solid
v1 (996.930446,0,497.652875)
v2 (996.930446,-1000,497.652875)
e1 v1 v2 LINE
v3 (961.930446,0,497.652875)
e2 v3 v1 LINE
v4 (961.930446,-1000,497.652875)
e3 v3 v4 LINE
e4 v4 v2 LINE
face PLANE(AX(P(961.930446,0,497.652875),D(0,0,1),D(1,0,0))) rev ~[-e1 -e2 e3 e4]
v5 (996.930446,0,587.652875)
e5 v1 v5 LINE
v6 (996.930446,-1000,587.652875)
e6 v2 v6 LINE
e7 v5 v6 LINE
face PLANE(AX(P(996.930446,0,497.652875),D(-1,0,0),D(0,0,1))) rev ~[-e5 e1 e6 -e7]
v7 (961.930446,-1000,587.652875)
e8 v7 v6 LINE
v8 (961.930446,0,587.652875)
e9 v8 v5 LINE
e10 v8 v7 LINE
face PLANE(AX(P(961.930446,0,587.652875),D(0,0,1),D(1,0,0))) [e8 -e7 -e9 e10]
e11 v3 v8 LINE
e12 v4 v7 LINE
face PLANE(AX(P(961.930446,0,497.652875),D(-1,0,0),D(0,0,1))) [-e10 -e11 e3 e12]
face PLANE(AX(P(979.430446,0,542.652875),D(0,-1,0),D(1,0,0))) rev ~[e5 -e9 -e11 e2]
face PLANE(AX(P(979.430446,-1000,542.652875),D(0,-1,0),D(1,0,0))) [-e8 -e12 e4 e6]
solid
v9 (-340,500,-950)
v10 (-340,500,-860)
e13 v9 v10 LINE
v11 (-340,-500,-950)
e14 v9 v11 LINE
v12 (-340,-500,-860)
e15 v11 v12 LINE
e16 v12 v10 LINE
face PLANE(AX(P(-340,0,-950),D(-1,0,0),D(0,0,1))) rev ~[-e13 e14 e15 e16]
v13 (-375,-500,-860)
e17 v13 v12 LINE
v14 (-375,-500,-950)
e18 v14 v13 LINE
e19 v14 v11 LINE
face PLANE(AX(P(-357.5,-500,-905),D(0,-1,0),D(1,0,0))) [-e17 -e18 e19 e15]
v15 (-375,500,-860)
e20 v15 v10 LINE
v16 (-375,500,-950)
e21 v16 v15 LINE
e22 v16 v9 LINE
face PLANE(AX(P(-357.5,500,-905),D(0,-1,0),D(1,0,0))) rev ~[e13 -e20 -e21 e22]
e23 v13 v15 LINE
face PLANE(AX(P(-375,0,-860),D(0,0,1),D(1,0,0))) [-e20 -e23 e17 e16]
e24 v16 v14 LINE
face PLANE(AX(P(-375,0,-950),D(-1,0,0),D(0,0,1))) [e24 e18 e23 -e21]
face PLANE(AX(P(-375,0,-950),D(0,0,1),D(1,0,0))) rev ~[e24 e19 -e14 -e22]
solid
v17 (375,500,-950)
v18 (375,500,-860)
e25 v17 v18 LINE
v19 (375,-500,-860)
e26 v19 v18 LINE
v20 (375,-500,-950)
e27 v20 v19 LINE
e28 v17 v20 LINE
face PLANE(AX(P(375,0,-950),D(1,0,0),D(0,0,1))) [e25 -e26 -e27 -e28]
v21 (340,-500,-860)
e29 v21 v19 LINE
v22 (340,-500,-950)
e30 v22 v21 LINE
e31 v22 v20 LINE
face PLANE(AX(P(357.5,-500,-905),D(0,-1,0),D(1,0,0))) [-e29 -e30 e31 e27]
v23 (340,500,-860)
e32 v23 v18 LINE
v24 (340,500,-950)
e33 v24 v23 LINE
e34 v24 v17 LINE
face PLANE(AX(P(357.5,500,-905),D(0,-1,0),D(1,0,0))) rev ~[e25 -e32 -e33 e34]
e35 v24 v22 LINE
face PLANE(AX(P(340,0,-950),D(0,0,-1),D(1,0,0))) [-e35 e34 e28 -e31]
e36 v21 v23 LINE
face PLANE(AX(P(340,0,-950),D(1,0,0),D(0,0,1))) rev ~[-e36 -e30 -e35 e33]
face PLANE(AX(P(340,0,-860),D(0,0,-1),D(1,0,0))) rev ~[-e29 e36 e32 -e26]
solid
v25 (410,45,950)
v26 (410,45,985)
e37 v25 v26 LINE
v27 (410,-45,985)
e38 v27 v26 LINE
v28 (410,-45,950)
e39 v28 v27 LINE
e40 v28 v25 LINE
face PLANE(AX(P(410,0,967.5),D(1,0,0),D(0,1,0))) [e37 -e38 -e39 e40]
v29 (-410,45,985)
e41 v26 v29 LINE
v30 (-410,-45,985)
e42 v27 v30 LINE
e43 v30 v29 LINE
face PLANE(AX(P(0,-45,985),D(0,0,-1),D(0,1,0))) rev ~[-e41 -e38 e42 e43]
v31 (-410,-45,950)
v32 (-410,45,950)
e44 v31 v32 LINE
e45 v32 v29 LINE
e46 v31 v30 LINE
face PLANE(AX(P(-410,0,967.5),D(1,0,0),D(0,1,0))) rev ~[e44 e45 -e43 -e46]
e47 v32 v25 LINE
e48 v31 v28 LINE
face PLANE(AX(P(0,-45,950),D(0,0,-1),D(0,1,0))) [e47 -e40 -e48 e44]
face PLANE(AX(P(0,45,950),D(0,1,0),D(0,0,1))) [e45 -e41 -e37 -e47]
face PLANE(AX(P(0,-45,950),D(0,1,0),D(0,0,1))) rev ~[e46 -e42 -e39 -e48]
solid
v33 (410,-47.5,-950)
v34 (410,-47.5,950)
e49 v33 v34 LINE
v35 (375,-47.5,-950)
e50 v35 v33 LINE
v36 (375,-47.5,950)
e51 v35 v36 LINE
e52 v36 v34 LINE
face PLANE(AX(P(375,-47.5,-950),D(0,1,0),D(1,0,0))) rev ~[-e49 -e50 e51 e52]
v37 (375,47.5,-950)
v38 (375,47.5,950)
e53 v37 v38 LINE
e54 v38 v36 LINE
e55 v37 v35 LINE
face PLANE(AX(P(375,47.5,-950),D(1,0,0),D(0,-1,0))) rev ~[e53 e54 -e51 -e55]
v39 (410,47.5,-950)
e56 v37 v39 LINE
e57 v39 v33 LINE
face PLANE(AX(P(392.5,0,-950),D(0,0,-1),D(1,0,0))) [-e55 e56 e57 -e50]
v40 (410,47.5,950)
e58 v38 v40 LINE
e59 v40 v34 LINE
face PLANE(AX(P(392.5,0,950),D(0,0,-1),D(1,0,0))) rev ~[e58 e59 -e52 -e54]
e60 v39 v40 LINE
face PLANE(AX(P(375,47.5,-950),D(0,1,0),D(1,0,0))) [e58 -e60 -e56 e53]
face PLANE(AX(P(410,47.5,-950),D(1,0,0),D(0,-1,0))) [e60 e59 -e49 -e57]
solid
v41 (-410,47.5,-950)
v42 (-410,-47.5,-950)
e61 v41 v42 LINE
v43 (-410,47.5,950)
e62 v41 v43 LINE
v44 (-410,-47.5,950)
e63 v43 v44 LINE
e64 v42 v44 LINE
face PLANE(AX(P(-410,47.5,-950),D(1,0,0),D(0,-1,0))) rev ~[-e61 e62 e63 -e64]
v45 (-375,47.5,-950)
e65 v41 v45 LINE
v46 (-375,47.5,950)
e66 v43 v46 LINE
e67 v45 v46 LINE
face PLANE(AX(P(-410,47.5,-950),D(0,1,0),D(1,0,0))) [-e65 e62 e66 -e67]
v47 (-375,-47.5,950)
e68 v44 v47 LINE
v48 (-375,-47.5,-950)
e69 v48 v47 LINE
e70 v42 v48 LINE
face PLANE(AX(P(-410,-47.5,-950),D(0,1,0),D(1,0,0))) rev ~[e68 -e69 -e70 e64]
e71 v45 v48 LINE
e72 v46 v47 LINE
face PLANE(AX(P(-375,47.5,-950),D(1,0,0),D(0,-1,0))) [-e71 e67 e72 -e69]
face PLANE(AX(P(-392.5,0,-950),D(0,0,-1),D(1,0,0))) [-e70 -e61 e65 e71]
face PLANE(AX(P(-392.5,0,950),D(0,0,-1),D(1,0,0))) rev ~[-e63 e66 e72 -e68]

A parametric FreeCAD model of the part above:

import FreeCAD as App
import Part
import Sketcher
Q = App.Units.Quantity


def add_polygon(sketch, points):
    """Adds a closed chain of lines whose ends are joined by coincident constraints."""
    first, n = sketch.GeometryCount, len(points)
    for a, b in zip(points, points[1:] + points[:1]):
        sketch.addGeometry(Part.LineSegment(App.Vector(*a, 0), App.Vector(*b, 0)), False)
    for i in range(n):
        sketch.addConstraint(Sketcher.Constraint("Coincident", first + i, 2, first + (i + 1) % n, 1))

doc = App.newDocument("Part")
params = doc.addObject("Spreadsheet::Sheet", "Params")
for row, (alias, value) in enumerate([
    ("sketch1_width", "35 mm"),
    ("sketch1_height", "90 mm"),
    ("pad1_length", "1000 mm"),
    ("sketch2_width", "35 mm"),
    ("sketch2_height", "90 mm"),
    ("pad2_length", "1000 mm"),
    ("sketch3_width", "35 mm"),
    ("sketch3_height", "95 mm"),
    ("pad3_length", "1900 mm"),
    ("sketch4_width", "90 mm"),
    ("sketch4_height", "35 mm"),
    ("pad4_length", "410 mm"),
    ("pad4_length2", "410 mm"),
], start=1):
    params.set(f"A{row}", alias)
    params.set(f"B{row}", "=" + value)
    params.setAlias(f"B{row}", alias)

body = doc.addObject("PartDesign::Body", "Body")

# Sketch on XZ plane
sketch1 = body.newObject("Sketcher::SketchObject", "Sketch")
sketch1.AttachmentSupport = (doc.getObject("XZ_Plane"), [""])
sketch1.MapMode = "FlatFace"
add_polygon(sketch1, [(961.930446, 587.652875), (961.930446, 497.652875), (996.930446, 497.652875), (996.930446, 587.652875)])  # lines 0-3
sketch1.addConstraint(Sketcher.Constraint("Vertical", 0))
sketch1.addConstraint(Sketcher.Constraint("Horizontal", 1))
sketch1.addConstraint(Sketcher.Constraint("Vertical", 2))
sketch1.addConstraint(Sketcher.Constraint("Horizontal", 3))
sketch1.addConstraint(Sketcher.Constraint("DistanceX", 1, 1, 1, 2, Q("35 mm")))
sketch1.addConstraint(Sketcher.Constraint("DistanceY", 0, 2, 0, 1, Q("90 mm")))
sketch1.addConstraint(Sketcher.Constraint("DistanceX", -1, 1, 0, 2, Q("961.930446 mm")))
sketch1.addConstraint(Sketcher.Constraint("DistanceY", -1, 1, 0, 2, Q("497.652875 mm")))
sketch1.setExpression("Constraints[8]", "Params.sketch1_width")
sketch1.setExpression("Constraints[9]", "Params.sketch1_height")
pad1 = body.newObject("PartDesign::Pad", "Pad")
pad1.Profile = sketch1
pad1.setExpression("Length", "Params.pad1_length")
body2 = doc.addObject("PartDesign::Body", "Body001")
body2.AllowCompound = True

# Sketch on XZ plane
sketch2 = body2.newObject("Sketcher::SketchObject", "Sketch001")
sketch2.AttachmentSupport = (doc.getObject("XZ_Plane001"), [""])
sketch2.MapMode = "FlatFace"
add_polygon(sketch2, [(-375, -860), (-375, -950), (-340, -950), (-340, -860)])  # lines 0-3
add_polygon(sketch2, [(340, -860), (340, -950), (375, -950), (375, -860)])  # lines 4-7
sketch2.addConstraint(Sketcher.Constraint("Vertical", 0))
sketch2.addConstraint(Sketcher.Constraint("Horizontal", 1))
sketch2.addConstraint(Sketcher.Constraint("Vertical", 2))
sketch2.addConstraint(Sketcher.Constraint("Horizontal", 3))
sketch2.addConstraint(Sketcher.Constraint("Vertical", 4))
sketch2.addConstraint(Sketcher.Constraint("Horizontal", 5))
sketch2.addConstraint(Sketcher.Constraint("Vertical", 6))
sketch2.addConstraint(Sketcher.Constraint("Horizontal", 7))
sketch2.addConstraint(Sketcher.Constraint("Symmetric", 1, 2, 4, 2, -2))
sketch2.addConstraint(Sketcher.Constraint("Symmetric", 3, 2, 6, 2, -2))
sketch2.addConstraint(Sketcher.Constraint("DistanceX", 1, 1, 1, 2, Q("35 mm")))
sketch2.addConstraint(Sketcher.Constraint("DistanceY", 0, 2, 0, 1, Q("90 mm")))
sketch2.addConstraint(Sketcher.Constraint("DistanceX", 0, 2, -1, 1, Q("375 mm")))
sketch2.addConstraint(Sketcher.Constraint("DistanceY", 0, 2, -1, 1, Q("950 mm")))
sketch2.setExpression("Constraints[18]", "Params.sketch2_width")
sketch2.setExpression("Constraints[19]", "Params.sketch2_height")
pad2 = body2.newObject("PartDesign::Pad", "Pad001")
pad2.Profile = sketch2
pad2.setExpression("Length", "Params.pad2_length")
pad2.Midplane = True
body3 = doc.addObject("PartDesign::Body", "Body002")
body3.AllowCompound = True

# Sketch on XY plane
sketch3 = body3.newObject("Sketcher::SketchObject", "Sketch002")
sketch3.AttachmentSupport = (doc.getObject("XY_Plane002"), [""])
sketch3.MapMode = "FlatFace"
sketch3.AttachmentOffset = App.Placement(App.Vector(0, 0, -950), App.Rotation())
add_polygon(sketch3, [(375, -47.5), (375, 47.5), (410, 47.5), (410, -47.5)])  # lines 0-3
add_polygon(sketch3, [(-410, -47.5), (-410, 47.5), (-375, 47.5), (-375, -47.5)])  # lines 4-7
sketch3.addConstraint(Sketcher.Constraint("Vertical", 0))
sketch3.addConstraint(Sketcher.Constraint("Horizontal", 1))
sketch3.addConstraint(Sketcher.Constraint("Vertical", 2))
sketch3.addConstraint(Sketcher.Constraint("Horizontal", 3))
sketch3.addConstraint(Sketcher.Constraint("Vertical", 4))
sketch3.addConstraint(Sketcher.Constraint("Horizontal", 5))
sketch3.addConstraint(Sketcher.Constraint("Vertical", 6))
sketch3.addConstraint(Sketcher.Constraint("Horizontal", 7))
sketch3.addConstraint(Sketcher.Constraint("Symmetric", 2, 2, 4, 2, -1, 1))
sketch3.addConstraint(Sketcher.Constraint("Symmetric", 0, 2, 6, 2, -1, 1))
sketch3.addConstraint(Sketcher.Constraint("Horizontal", 1, 2, 4, 2))
sketch3.addConstraint(Sketcher.Constraint("DistanceX", 1, 1, 1, 2, Q("35 mm")))
sketch3.addConstraint(Sketcher.Constraint("DistanceY", 0, 1, 0, 2, Q("95 mm")))
sketch3.addConstraint(Sketcher.Constraint("DistanceX", -1, 1, 0, 2, Q("375 mm")))
sketch3.setExpression("Constraints[19]", "Params.sketch3_width")
sketch3.setExpression("Constraints[20]", "Params.sketch3_height")
pad3 = body3.newObject("PartDesign::Pad", "Pad002")
pad3.Profile = sketch3
pad3.setExpression("Length", "Params.pad3_length")
body4 = doc.addObject("PartDesign::Body", "Body003")

# Sketch on YZ plane
sketch4 = body4.newObject("Sketcher::SketchObject", "Sketch003")
sketch4.AttachmentSupport = (doc.getObject("YZ_Plane003"), [""])
sketch4.MapMode = "FlatFace"
add_polygon(sketch4, [(-45, 985), (-45, 950), (45, 950), (45, 985)])  # lines 0-3
sketch4.addConstraint(Sketcher.Constraint("Vertical", 0))
sketch4.addConstraint(Sketcher.Constraint("Horizontal", 1))
sketch4.addConstraint(Sketcher.Constraint("Vertical", 2))
sketch4.addConstraint(Sketcher.Constraint("Horizontal", 3))
sketch4.addConstraint(Sketcher.Constraint("DistanceX", 1, 1, 1, 2, Q("90 mm")))
sketch4.addConstraint(Sketcher.Constraint("DistanceY", 0, 2, 0, 1, Q("35 mm")))
sketch4.addConstraint(Sketcher.Constraint("DistanceX", 0, 2, -1, 1, Q("45 mm")))
sketch4.addConstraint(Sketcher.Constraint("DistanceY", -1, 1, 0, 2, Q("950 mm")))
sketch4.setExpression("Constraints[8]", "Params.sketch4_width")
sketch4.setExpression("Constraints[9]", "Params.sketch4_height")
pad4 = body4.newObject("PartDesign::Pad", "Pad003")
pad4.Profile = sketch4
pad4.Type = "TwoLengths"
pad4.setExpression("Length", "Params.pad4_length")
pad4.setExpression("Length2", "Params.pad4_length2")

doc.recompute()
